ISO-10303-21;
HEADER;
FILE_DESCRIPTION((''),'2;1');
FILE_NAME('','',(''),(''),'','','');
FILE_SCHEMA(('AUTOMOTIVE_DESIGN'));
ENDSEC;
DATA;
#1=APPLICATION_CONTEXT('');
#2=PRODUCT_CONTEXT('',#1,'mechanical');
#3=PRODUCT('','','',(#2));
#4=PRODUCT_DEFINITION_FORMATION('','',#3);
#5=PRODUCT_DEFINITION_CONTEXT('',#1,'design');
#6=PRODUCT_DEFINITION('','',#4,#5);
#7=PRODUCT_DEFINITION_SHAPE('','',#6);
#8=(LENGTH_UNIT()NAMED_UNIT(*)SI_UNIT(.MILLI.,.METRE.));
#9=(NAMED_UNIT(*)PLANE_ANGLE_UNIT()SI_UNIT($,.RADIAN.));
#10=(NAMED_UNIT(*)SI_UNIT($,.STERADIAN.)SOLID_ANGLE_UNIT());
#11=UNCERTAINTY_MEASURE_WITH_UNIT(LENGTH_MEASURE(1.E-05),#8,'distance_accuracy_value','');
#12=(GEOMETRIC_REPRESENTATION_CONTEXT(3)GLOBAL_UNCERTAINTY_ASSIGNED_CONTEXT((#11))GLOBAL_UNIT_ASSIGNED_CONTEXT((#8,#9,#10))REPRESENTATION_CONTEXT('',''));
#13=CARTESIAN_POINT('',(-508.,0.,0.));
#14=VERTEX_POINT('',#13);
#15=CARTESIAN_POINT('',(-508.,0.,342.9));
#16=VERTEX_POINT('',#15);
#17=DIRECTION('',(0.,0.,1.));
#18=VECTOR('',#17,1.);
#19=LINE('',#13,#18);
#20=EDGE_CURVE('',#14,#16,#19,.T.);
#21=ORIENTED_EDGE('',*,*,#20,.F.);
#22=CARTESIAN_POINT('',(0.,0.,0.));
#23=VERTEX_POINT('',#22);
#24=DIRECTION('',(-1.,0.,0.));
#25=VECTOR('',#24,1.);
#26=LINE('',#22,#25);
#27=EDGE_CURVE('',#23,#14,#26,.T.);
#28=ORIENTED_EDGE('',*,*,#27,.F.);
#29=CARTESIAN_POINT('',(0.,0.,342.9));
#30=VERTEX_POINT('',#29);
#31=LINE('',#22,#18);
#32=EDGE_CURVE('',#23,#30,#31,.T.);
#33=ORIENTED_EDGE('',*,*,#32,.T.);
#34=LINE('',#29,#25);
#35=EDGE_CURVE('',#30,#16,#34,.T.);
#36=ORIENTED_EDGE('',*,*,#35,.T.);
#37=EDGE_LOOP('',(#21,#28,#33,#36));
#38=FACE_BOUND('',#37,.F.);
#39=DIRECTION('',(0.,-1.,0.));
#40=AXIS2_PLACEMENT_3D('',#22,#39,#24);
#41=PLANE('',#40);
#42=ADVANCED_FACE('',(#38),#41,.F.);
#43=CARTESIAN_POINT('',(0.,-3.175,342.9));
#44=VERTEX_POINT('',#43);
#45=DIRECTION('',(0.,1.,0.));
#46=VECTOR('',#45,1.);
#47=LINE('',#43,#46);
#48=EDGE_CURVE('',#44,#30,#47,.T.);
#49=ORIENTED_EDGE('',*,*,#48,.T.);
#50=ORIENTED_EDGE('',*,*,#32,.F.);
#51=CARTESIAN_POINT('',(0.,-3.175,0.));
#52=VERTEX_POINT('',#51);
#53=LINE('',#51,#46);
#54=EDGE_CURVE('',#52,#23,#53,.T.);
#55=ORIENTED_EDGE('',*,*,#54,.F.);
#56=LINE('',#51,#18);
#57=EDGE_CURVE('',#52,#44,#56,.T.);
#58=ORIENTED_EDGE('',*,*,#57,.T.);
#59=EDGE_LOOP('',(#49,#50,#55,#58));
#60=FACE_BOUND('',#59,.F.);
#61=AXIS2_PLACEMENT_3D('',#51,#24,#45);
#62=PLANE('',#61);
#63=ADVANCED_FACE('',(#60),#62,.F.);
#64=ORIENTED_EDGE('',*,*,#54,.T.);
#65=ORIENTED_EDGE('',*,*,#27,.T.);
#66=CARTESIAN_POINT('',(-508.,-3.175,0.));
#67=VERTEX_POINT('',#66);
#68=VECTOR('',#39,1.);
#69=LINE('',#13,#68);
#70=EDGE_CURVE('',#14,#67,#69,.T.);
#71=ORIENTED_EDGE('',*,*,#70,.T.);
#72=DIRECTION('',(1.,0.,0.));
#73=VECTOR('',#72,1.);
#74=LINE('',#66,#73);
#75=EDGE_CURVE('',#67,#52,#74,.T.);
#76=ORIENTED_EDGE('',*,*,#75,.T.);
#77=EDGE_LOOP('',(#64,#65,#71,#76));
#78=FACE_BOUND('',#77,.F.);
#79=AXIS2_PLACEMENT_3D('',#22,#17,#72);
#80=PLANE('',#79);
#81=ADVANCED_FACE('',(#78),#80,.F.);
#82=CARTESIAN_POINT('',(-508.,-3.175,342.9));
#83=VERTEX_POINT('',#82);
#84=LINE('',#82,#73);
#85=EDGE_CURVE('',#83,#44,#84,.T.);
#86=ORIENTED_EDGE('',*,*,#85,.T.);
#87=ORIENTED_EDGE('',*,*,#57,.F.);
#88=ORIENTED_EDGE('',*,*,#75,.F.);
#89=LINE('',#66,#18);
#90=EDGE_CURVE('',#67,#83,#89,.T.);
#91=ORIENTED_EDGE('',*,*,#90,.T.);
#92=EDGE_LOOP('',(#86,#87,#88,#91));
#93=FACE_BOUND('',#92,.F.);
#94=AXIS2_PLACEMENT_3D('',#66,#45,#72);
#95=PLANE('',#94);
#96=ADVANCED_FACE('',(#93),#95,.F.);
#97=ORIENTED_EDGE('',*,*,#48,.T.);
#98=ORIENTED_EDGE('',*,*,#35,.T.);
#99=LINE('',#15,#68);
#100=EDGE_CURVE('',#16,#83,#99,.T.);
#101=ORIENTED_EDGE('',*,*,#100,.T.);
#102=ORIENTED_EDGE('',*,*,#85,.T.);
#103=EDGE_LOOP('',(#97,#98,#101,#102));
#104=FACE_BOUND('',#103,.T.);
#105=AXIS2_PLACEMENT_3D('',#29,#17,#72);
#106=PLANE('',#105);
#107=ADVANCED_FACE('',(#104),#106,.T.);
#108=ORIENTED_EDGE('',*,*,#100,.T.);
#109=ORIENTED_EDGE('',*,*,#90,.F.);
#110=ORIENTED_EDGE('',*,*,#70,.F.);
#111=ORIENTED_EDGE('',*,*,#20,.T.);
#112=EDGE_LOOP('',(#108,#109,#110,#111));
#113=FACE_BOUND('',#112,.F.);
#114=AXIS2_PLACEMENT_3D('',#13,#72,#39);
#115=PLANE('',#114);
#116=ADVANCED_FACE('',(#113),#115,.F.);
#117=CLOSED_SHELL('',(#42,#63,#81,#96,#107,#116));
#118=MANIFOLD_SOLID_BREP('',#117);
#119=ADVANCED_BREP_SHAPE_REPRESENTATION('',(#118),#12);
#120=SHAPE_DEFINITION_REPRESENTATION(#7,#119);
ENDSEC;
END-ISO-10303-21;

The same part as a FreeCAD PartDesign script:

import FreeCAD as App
import Part
import Sketcher
Q = App.Units.Quantity

doc = App.newDocument("Part")
params = doc.addObject("Spreadsheet::Sheet", "Params")
for row, (alias, value) in enumerate([
    ("sketch1_width", "20 in"),
    ("sketch1_height", "0.125 in"),
    ("pad1_length", "13.5 in"),
], start=1):
    params.set(f"A{row}", alias)
    params.set(f"B{row}", "=" + value)
    params.setAlias(f"B{row}", alias)

body = doc.addObject("PartDesign::Body", "Body")

# Sketch on XY plane
sketch1 = body.newObject("Sketcher::SketchObject", "Sketch")
sketch1.AttachmentSupport = (doc.getObject("XY_Plane"), [""])
sketch1.MapMode = "FlatFace"
sketch1.addGeometry([
    Part.LineSegment(App.Vector(0, -3.175, 0), App.Vector(0, 0, 0)),
    Part.LineSegment(App.Vector(0, 0, 0), App.Vector(-508, 0, 0)),
    Part.LineSegment(App.Vector(-508, 0, 0), App.Vector(-508, -3.175, 0)),
    Part.LineSegment(App.Vector(-508, -3.175, 0), App.Vector(0, -3.175, 0)),
], False)
sketch1.addConstraint([
    Sketcher.Constraint("Coincident", 0, 2, 1, 1),
    Sketcher.Constraint("Coincident", 1, 2, 2, 1),
    Sketcher.Constraint("Coincident", 2, 2, 3, 1),
    Sketcher.Constraint("Coincident", 3, 2, 0, 1),
    Sketcher.Constraint("Vertical", 0),
    Sketcher.Constraint("Horizontal", 1),
    Sketcher.Constraint("Vertical", 2),
    Sketcher.Constraint("Horizontal", 3),
    Sketcher.Constraint("Coincident", 0, 2, -1, 1),
    Sketcher.Constraint("DistanceX", 1, 2, 1, 1, Q("20 in")),
    Sketcher.Constraint("DistanceY", 0, 1, 0, 2, Q("0.125 in")),
])
sketch1.setExpression("Constraints[9]", "Params.sketch1_width")
sketch1.setExpression("Constraints[10]", "Params.sketch1_height")
pad1 = body.newObject("PartDesign::Pad", "Pad")
pad1.Profile = sketch1
pad1.setExpression("Length", "Params.pad1_length")

doc.recompute()
